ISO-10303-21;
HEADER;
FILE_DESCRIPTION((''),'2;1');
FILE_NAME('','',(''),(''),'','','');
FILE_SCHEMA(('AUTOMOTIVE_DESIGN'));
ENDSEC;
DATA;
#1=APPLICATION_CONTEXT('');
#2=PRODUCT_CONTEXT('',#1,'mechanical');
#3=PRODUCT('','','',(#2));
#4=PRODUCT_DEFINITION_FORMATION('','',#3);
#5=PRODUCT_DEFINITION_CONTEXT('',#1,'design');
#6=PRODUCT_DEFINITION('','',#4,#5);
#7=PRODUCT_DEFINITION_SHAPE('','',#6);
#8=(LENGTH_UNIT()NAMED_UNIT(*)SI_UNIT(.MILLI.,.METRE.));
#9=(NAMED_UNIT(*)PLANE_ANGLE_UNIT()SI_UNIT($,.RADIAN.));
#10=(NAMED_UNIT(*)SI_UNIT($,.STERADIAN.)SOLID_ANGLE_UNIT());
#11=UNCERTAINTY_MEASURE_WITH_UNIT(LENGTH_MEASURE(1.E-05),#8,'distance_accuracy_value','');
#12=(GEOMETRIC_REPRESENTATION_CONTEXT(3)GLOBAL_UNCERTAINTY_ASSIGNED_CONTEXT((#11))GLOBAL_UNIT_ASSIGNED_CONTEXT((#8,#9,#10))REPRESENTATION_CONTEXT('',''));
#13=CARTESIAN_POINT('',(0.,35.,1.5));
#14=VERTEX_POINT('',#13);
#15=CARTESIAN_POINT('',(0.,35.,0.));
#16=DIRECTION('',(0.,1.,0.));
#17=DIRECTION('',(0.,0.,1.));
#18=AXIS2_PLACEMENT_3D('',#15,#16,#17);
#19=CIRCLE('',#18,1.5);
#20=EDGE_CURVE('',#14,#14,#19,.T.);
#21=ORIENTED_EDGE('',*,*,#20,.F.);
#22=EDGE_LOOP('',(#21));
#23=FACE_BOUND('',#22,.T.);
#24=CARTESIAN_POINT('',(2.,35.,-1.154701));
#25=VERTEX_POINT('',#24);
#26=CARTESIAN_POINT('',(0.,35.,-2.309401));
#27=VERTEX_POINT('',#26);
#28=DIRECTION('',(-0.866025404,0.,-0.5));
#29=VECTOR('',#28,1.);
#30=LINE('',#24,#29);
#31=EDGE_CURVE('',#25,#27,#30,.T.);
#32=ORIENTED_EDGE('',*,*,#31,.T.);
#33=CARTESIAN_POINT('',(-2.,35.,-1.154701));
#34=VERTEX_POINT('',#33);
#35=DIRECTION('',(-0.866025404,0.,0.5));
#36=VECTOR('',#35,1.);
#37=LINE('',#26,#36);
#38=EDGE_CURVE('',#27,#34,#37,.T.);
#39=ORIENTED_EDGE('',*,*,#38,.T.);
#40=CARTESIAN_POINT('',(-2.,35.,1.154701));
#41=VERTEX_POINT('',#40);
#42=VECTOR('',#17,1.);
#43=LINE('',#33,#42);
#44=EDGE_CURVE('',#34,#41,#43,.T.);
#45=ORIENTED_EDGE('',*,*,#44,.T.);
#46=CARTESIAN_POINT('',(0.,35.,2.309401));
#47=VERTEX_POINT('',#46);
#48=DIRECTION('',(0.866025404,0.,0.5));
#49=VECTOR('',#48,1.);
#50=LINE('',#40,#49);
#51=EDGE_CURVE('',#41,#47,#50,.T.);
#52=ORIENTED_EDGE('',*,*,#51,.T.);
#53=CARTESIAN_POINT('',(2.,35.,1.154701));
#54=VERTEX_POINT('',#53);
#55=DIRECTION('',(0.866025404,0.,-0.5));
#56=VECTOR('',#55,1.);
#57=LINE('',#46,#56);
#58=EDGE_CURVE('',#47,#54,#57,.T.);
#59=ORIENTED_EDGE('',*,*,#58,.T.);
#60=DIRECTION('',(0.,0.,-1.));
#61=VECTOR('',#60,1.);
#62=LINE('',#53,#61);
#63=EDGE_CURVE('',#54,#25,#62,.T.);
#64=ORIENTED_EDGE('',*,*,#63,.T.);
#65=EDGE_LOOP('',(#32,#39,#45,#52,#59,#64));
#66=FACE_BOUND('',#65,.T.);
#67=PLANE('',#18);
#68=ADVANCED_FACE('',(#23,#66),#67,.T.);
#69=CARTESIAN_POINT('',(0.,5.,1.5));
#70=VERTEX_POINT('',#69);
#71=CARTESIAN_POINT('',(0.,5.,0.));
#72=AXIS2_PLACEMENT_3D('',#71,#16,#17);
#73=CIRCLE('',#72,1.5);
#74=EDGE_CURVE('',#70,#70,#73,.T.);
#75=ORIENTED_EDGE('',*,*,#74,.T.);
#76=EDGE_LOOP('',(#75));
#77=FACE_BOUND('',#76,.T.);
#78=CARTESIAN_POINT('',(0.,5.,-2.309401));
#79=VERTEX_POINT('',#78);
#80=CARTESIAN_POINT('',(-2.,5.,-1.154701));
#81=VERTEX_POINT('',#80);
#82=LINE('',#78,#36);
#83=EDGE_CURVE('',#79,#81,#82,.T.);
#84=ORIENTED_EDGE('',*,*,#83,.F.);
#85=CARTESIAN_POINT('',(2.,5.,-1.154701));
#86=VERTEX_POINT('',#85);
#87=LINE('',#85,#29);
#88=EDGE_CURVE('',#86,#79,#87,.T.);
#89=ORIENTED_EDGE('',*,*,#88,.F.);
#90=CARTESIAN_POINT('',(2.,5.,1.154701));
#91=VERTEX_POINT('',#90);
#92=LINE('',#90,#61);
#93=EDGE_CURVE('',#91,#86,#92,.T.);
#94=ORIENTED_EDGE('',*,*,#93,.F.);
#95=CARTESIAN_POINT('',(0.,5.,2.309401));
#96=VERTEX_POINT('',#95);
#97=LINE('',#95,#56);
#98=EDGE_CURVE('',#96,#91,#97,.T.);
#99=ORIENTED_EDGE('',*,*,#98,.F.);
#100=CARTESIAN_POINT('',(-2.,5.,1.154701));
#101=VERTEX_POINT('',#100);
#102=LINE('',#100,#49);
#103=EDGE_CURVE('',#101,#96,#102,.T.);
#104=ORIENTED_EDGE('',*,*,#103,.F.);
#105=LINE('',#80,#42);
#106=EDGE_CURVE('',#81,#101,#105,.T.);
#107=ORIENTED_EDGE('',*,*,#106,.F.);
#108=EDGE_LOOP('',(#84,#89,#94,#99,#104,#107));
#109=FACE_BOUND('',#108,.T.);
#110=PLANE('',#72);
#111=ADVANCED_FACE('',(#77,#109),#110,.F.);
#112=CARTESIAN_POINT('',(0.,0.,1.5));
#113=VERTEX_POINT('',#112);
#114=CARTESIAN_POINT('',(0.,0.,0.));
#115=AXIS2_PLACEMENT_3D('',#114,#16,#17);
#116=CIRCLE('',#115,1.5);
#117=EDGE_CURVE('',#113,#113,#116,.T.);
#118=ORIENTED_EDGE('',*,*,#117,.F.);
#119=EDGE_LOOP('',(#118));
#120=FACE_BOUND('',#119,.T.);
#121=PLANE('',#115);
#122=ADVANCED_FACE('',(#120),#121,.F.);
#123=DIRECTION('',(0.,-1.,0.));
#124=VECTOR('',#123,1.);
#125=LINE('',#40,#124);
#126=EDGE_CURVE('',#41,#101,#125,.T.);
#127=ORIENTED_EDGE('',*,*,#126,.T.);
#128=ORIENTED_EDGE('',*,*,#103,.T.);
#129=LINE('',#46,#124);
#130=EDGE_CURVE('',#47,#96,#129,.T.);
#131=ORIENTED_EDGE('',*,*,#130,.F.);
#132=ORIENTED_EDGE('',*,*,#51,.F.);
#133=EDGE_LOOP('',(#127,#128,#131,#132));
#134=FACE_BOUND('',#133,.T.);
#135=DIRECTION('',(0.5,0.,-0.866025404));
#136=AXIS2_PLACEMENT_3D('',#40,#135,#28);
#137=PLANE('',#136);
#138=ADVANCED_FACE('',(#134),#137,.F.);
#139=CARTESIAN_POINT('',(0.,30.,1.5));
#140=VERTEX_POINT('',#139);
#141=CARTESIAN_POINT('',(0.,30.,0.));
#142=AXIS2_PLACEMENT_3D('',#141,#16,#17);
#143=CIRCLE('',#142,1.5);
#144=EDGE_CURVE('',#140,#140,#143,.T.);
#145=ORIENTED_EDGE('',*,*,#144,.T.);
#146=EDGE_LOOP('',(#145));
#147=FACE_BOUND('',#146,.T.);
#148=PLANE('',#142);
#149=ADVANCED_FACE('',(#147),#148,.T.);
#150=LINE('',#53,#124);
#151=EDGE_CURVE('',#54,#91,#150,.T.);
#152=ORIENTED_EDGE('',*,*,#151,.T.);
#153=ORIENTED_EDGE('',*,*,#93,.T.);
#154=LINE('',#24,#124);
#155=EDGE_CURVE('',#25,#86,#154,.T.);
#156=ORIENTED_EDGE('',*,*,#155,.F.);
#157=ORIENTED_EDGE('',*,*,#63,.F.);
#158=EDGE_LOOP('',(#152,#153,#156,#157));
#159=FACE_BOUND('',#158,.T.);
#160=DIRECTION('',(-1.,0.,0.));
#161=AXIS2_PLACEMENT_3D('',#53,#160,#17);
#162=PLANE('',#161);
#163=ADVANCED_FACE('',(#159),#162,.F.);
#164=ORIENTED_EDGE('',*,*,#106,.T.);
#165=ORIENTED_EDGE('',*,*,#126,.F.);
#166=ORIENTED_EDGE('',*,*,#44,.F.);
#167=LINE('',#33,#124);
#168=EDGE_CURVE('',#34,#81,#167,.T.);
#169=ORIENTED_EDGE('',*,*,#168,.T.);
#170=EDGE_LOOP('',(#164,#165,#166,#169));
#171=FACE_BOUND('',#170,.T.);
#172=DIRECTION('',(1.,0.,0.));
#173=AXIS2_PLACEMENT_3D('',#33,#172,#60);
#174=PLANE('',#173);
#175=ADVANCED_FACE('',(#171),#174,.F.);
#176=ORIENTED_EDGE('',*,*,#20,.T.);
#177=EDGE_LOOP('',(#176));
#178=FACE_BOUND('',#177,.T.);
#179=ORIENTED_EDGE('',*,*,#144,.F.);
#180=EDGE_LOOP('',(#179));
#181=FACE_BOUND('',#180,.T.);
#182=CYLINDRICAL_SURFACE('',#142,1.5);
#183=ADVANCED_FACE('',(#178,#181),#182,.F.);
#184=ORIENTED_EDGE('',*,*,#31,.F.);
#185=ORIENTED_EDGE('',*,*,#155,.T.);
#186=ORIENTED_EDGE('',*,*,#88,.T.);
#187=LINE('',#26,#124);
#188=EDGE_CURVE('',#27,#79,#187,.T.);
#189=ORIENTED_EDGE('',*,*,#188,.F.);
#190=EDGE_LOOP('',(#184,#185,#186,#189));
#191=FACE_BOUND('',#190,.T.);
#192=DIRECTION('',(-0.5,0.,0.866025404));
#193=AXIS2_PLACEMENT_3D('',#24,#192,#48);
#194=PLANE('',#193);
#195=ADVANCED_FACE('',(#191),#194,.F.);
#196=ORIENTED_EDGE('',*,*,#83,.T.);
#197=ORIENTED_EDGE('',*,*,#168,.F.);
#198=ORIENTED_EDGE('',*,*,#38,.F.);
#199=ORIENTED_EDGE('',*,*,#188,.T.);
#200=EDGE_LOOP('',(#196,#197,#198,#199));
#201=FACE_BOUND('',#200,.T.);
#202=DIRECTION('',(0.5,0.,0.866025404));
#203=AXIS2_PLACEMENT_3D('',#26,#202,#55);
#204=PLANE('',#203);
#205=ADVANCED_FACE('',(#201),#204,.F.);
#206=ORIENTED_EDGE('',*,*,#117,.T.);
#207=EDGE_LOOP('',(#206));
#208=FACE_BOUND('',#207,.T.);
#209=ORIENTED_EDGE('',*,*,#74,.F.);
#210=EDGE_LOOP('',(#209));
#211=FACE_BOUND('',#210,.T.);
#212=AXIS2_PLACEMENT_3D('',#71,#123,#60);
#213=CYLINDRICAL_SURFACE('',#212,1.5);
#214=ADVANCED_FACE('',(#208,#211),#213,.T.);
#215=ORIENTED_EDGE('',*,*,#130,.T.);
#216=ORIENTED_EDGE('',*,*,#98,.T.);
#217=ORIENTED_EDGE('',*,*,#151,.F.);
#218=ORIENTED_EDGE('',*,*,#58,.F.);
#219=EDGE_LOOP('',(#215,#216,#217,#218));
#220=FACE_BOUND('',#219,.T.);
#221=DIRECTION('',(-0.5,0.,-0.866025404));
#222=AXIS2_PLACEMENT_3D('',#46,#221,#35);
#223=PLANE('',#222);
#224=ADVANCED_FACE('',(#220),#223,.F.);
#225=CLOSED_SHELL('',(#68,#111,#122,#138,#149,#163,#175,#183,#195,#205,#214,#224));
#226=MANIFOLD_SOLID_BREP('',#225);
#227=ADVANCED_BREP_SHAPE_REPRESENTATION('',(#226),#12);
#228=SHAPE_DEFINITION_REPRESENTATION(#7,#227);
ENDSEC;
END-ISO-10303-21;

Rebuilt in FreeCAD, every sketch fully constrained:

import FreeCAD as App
import Part
import Sketcher

V = App.Vector
Q = App.Units.Quantity


def add_polygon(sketch, points):
    """Adds a closed chain of lines whose ends are joined by coincident constraints."""
    first, n = sketch.GeometryCount, len(points)
    for a, b in zip(points, points[1:] + points[:1]):
        sketch.addGeometry(Part.LineSegment(App.Vector(*a, 0), App.Vector(*b, 0)), False)
    for i in range(n):
        sketch.addConstraint(Sketcher.Constraint("Coincident", first + i, 2, first + (i + 1) % n, 1))

doc = App.newDocument("Part")
body = doc.addObject("PartDesign::Body", "Body")

# Sketch on XZ plane
sketch1 = doc.addObject("Sketcher::SketchObject", "Sketch")
body.addObject(sketch1)
sketch1.AttachmentSupport = (doc.XZ_Plane, [""])
sketch1.MapMode = "FlatFace"
sketch1.addGeometry(Part.Circle(V(0, 0, 0), V(0, 0, 1), 1.5), False)
sketch1.addConstraint(Sketcher.Constraint("Coincident", 0, 3, -1, 1))
sketch1.addConstraint(Sketcher.Constraint("Diameter", 0, Q("3 mm")))
pad1 = doc.addObject("PartDesign::Pad", "Pad")
body.addObject(pad1)
pad1.Profile = sketch1
pad1.Length = 5
pad1.Reversed = True

# Sketch on XZ plane
sketch2 = doc.addObject("Sketcher::SketchObject", "Sketch001")
body.addObject(sketch2)
sketch2.AttachmentSupport = (doc.XZ_Plane, [""])
sketch2.MapMode = "FlatFace"
sketch2.AttachmentOffset = App.Placement(V(0, 0, -5), App.Rotation())
add_polygon(sketch2, [(0, -2.3), (-2, -1.2), (-2, 1.2), (0, 2.3), (2, 1.2), (2, -1.2)])  # lines 0-5
sketch2.addConstraint(Sketcher.Constraint("Vertical", 1))
sketch2.addConstraint(Sketcher.Constraint("Vertical", 4))
sketch2.addConstraint(Sketcher.Constraint("Symmetric", 0, 2, 3, 2, -1, 1))
sketch2.addConstraint(Sketcher.Constraint("Symmetric", 2, 2, 5, 2, -1, 1))
sketch2.addConstraint(Sketcher.Constraint("PointOnObject", 2, 2, -2))
sketch2.addConstraint(Sketcher.Constraint("Parallel", 2, 5))
sketch2.addConstraint(Sketcher.Constraint("Horizontal", 1, 2, 3, 2))
sketch2.addConstraint(Sketcher.Constraint("Angle", 0, Q("150 deg")))
sketch2.addConstraint(Sketcher.Constraint("DistanceX", 0, 2, -1, 1, Q("2 mm")))
sketch2.addConstraint(Sketcher.Constraint("DistanceY", 1, 1, 1, 2, Q("2.309401 mm")))
pad2 = doc.addObject("PartDesign::Pad", "Pad001")
body.addObject(pad2)
pad2.Profile = sketch2
pad2.Length = 30
pad2.Reversed = True

# Sketch on XZ plane
sketch3 = doc.addObject("Sketcher::SketchObject", "Sketch002")
body.addObject(sketch3)
sketch3.AttachmentSupport = (doc.XZ_Plane, [""])
sketch3.MapMode = "FlatFace"
sketch3.AttachmentOffset = App.Placement(V(0, 0, -35), App.Rotation())
sketch3.addGeometry(Part.Circle(V(0, 0, 0), V(0, 0, 1), 1.5), False)
sketch3.addConstraint(Sketcher.Constraint("Coincident", 0, 3, -1, 1))
sketch3.addConstraint(Sketcher.Constraint("Diameter", 0, Q("3 mm")))
pocket1 = doc.addObject("PartDesign::Pocket", "Pocket")
body.addObject(pocket1)
pocket1.Profile = sketch3
pocket1.Length = 5
pocket1.Reversed = True

doc.recompute()
